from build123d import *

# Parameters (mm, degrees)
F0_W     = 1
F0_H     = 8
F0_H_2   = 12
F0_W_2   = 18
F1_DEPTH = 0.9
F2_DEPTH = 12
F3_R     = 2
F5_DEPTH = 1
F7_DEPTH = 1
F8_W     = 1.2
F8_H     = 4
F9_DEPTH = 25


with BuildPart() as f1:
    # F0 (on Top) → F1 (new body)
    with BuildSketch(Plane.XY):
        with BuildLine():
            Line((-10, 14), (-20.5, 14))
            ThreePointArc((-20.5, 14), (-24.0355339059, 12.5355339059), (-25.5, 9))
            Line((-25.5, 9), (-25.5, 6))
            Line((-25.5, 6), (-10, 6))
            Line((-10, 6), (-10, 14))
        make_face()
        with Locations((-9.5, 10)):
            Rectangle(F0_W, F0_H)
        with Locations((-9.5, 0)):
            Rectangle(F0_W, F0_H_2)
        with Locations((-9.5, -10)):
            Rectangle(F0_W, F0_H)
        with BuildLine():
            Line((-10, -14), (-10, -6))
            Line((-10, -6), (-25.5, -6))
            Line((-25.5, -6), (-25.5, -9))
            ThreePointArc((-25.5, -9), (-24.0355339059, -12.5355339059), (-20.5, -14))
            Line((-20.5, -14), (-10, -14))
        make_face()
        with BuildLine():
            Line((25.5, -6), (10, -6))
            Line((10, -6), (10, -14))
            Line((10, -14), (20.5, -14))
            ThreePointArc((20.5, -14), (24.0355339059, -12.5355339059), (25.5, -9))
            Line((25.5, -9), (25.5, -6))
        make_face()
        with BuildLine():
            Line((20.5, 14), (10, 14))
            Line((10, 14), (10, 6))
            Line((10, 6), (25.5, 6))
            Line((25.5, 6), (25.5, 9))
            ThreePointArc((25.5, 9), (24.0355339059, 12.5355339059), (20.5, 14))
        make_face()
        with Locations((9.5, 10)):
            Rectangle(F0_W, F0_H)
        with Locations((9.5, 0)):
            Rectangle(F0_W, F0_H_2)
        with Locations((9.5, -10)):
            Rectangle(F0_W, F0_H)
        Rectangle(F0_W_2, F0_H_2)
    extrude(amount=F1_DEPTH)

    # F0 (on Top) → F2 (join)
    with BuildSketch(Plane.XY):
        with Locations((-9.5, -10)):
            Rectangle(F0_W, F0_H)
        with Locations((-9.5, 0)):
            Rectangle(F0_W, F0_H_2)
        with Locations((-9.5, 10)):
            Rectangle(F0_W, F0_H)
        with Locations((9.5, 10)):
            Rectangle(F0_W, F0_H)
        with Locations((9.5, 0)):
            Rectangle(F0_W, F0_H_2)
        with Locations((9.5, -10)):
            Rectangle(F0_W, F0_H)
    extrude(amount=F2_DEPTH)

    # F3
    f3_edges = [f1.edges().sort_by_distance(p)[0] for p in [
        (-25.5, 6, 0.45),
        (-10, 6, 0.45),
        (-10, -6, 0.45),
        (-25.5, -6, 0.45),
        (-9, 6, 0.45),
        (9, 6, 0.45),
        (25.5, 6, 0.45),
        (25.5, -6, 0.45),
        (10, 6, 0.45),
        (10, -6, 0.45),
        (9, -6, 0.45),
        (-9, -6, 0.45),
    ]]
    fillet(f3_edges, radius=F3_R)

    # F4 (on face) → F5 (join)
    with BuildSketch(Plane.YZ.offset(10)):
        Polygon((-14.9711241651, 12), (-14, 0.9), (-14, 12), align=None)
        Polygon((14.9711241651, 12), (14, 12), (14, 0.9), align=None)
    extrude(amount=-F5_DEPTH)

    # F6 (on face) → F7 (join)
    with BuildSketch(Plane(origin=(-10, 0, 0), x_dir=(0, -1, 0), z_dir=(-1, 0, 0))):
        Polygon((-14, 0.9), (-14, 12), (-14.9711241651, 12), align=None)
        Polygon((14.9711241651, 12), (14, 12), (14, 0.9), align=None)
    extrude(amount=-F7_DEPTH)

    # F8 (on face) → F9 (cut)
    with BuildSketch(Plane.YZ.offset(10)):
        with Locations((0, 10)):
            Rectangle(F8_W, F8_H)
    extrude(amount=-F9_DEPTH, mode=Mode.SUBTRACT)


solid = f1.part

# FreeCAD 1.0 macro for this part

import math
import FreeCAD as App
import Part
import Sketcher
Q = App.Units.Quantity


def edges_at(feature, points):
    """Names of the edges that pass closest to the given points."""
    edges = feature.Shape.Edges
    near = lambda p: min(range(len(edges)), key=lambda i: edges[i].distToShape(Part.Vertex(*p))[0])
    return sorted({f"Edge{near(p) + 1}" for p in points})

doc = App.newDocument("Part")
params = doc.addObject("Spreadsheet::Sheet", "Params")
for row, (alias, value) in enumerate([
    ("sketch1_radius", "5 mm"),
    ("sketch1_width", "18 mm"),
    ("sketch1_height", "3 mm"),
    ("sketch1_height2", "12 mm"),
    ("sketch1_width2", "15.5 mm"),
    ("pad1_length", "0.9 mm"),
    ("sketch2_width", "1 mm"),
    ("sketch2_height", "28 mm"),
    ("pad2_length", "12 mm"),
    ("fillet_radius", "2 mm"),
    ("sketch3_height", "11.1 mm"),
    ("pad3_length", "1 mm"),
    ("sketch4_height", "11.1 mm"),
    ("pad4_length", "1 mm"),
    ("sketch5_height", "4 mm"),
    ("sketch5_width", "1.2 mm"),
    ("pocket1_length", "25 mm"),
], start=1):
    params.set(f"A{row}", alias)
    params.set(f"B{row}", "=" + value)
    params.setAlias(f"B{row}", alias)

body = doc.addObject("PartDesign::Body", "Body")

# Sketch on XY plane
sketch1 = body.newObject("Sketcher::SketchObject", "Sketch")
sketch1.AttachmentSupport = (doc.getObject("XY_Plane"), [""])
sketch1.MapMode = "FlatFace"
sketch1.addGeometry(Part.ArcOfCircle(Part.Circle(App.Vector(-20.5, 9, 0), App.Vector(0, 0, 1), 5), math.radians(90), math.radians(180)), False)
sketch1.addGeometry(Part.LineSegment(App.Vector(-25.5, 9, 0), App.Vector(-25.5, 6, 0)), False)
sketch1.addGeometry(Part.LineSegment(App.Vector(-25.5, 6, 0), App.Vector(-10, 6, 0)), False)
sketch1.addGeometry(Part.LineSegment(App.Vector(-10, 6, 0), App.Vector(-10, -6, 0)), False)
sketch1.addGeometry(Part.LineSegment(App.Vector(-10, -6, 0), App.Vector(-25.5, -6, 0)), False)
sketch1.addGeometry(Part.LineSegment(App.Vector(-25.5, -6, 0), App.Vector(-25.5, -9, 0)), False)
sketch1.addGeometry(Part.ArcOfCircle(Part.Circle(App.Vector(-20.5, -9, 0), App.Vector(0, 0, 1), 5), math.radians(180), math.radians(270)), False)
sketch1.addGeometry(Part.LineSegment(App.Vector(-20.5, -14, 0), App.Vector(-9, -14, 0)), False)
sketch1.addGeometry(Part.LineSegment(App.Vector(-9, -14, 0), App.Vector(-9, -6, 0)), False)
sketch1.addGeometry(Part.LineSegment(App.Vector(-9, -6, 0), App.Vector(9, -6, 0)), False)
sketch1.addGeometry(Part.LineSegment(App.Vector(9, -6, 0), App.Vector(9, -14, 0)), False)
sketch1.addGeometry(Part.LineSegment(App.Vector(9, -14, 0), App.Vector(20.5, -14, 0)), False)
sketch1.addGeometry(Part.ArcOfCircle(Part.Circle(App.Vector(20.5, -9, 0), App.Vector(0, 0, 1), 5), math.radians(-90), math.radians(0)), False)
sketch1.addGeometry(Part.LineSegment(App.Vector(25.5, -9, 0), App.Vector(25.5, -6, 0)), False)
sketch1.addGeometry(Part.LineSegment(App.Vector(25.5, -6, 0), App.Vector(10, -6, 0)), False)
sketch1.addGeometry(Part.LineSegment(App.Vector(10, -6, 0), App.Vector(10, 6, 0)), False)
sketch1.addGeometry(Part.LineSegment(App.Vector(10, 6, 0), App.Vector(25.5, 6, 0)), False)
sketch1.addGeometry(Part.LineSegment(App.Vector(25.5, 6, 0), App.Vector(25.5, 9, 0)), False)
sketch1.addGeometry(Part.ArcOfCircle(Part.Circle(App.Vector(20.5, 9, 0), App.Vector(0, 0, 1), 5), math.radians(0), math.radians(90)), False)
sketch1.addGeometry(Part.LineSegment(App.Vector(20.5, 14, 0), App.Vector(9, 14, 0)), False)
sketch1.addGeometry(Part.LineSegment(App.Vector(9, 14, 0), App.Vector(9, 6, 0)), False)
sketch1.addGeometry(Part.LineSegment(App.Vector(9, 6, 0), App.Vector(-9, 6, 0)), False)
sketch1.addGeometry(Part.LineSegment(App.Vector(-9, 6, 0), App.Vector(-9, 14, 0)), False)
sketch1.addGeometry(Part.LineSegment(App.Vector(-9, 14, 0), App.Vector(-20.5, 14, 0)), False)
sketch1.addConstraint(Sketcher.Constraint("Tangent", 0, 2, 1, 1))
sketch1.addConstraint(Sketcher.Constraint("Coincident", 1, 2, 2, 1))
sketch1.addConstraint(Sketcher.Constraint("Coincident", 2, 2, 3, 1))
sketch1.addConstraint(Sketcher.Constraint("Coincident", 3, 2, 4, 1))
sketch1.addConstraint(Sketcher.Constraint("Coincident", 4, 2, 5, 1))
sketch1.addConstraint(Sketcher.Constraint("Tangent", 5, 2, 6, 1))
sketch1.addConstraint(Sketcher.Constraint("Tangent", 6, 2, 7, 1))
sketch1.addConstraint(Sketcher.Constraint("Coincident", 7, 2, 8, 1))
sketch1.addConstraint(Sketcher.Constraint("Coincident", 8, 2, 9, 1))
sketch1.addConstraint(Sketcher.Constraint("Coincident", 9, 2, 10, 1))
sketch1.addConstraint(Sketcher.Constraint("Coincident", 10, 2, 11, 1))
sketch1.addConstraint(Sketcher.Constraint("Tangent", 11, 2, 12, 1))
sketch1.addConstraint(Sketcher.Constraint("Tangent", 12, 2, 13, 1))
sketch1.addConstraint(Sketcher.Constraint("Coincident", 13, 2, 14, 1))
sketch1.addConstraint(Sketcher.Constraint("Coincident", 14, 2, 15, 1))
sketch1.addConstraint(Sketcher.Constraint("Coincident", 15, 2, 16, 1))
sketch1.addConstraint(Sketcher.Constraint("Coincident", 16, 2, 17, 1))
sketch1.addConstraint(Sketcher.Constraint("Tangent", 17, 2, 18, 1))
sketch1.addConstraint(Sketcher.Constraint("Tangent", 18, 2, 19, 1))
sketch1.addConstraint(Sketcher.Constraint("Coincident", 19, 2, 20, 1))
sketch1.addConstraint(Sketcher.Constraint("Coincident", 20, 2, 21, 1))
sketch1.addConstraint(Sketcher.Constraint("Coincident", 21, 2, 22, 1))
sketch1.addConstraint(Sketcher.Constraint("Coincident", 22, 2, 23, 1))
sketch1.addConstraint(Sketcher.Constraint("Tangent", 23, 2, 0, 1))
sketch1.addConstraint(Sketcher.Constraint("Vertical", 1))
sketch1.addConstraint(Sketcher.Constraint("Horizontal", 2))
sketch1.addConstraint(Sketcher.Constraint("Vertical", 3))
sketch1.addConstraint(Sketcher.Constraint("Horizontal", 4))
sketch1.addConstraint(Sketcher.Constraint("Vertical", 5))
sketch1.addConstraint(Sketcher.Constraint("Horizontal", 7))
sketch1.addConstraint(Sketcher.Constraint("Vertical", 8))
sketch1.addConstraint(Sketcher.Constraint("Horizontal", 9))
sketch1.addConstraint(Sketcher.Constraint("Vertical", 10))
sketch1.addConstraint(Sketcher.Constraint("Horizontal", 11))
sketch1.addConstraint(Sketcher.Constraint("Vertical", 13))
sketch1.addConstraint(Sketcher.Constraint("Horizontal", 14))
sketch1.addConstraint(Sketcher.Constraint("Vertical", 15))
sketch1.addConstraint(Sketcher.Constraint("Horizontal", 16))
sketch1.addConstraint(Sketcher.Constraint("Vertical", 17))
sketch1.addConstraint(Sketcher.Constraint("Horizontal", 19))
sketch1.addConstraint(Sketcher.Constraint("Vertical", 20))
sketch1.addConstraint(Sketcher.Constraint("Horizontal", 21))
sketch1.addConstraint(Sketcher.Constraint("Vertical", 22))
sketch1.addConstraint(Sketcher.Constraint("Horizontal", 23))
sketch1.addConstraint(Sketcher.Constraint("Equal", 0, 6))
sketch1.addConstraint(Sketcher.Constraint("Equal", 6, 12))
sketch1.addConstraint(Sketcher.Constraint("Equal", 12, 18))
sketch1.addConstraint(Sketcher.Constraint("Symmetric", 0, 3, 12, 3, -1, 1))
sketch1.addConstraint(Sketcher.Constraint("Symmetric", 6, 3, 18, 3, -1, 1))
sketch1.addConstraint(Sketcher.Constraint("Symmetric", 2, 2, 14, 2, -1, 1))
sketch1.addConstraint(Sketcher.Constraint("Symmetric", 8, 2, 20, 2, -1, 1))
sketch1.addConstraint(Sketcher.Constraint("Symmetric", 6, 3, 12, 3, -2))
sketch1.addConstraint(Sketcher.Constraint("Horizontal", 4, 2, 8, 2))
sketch1.addConstraint(Sketcher.Constraint("Horizontal", 9, 2, 13, 2))
sketch1.addConstraint(Sketcher.Constraint("Horizontal", 2, 2, 15, 2))
sketch1.addConstraint(Sketcher.Constraint("Vertical", 10, 2, 19, 2))
sketch1.addConstraint(Sketcher.Constraint("Vertical", 8, 2, 21, 2))
sketch1.addConstraint(Sketcher.Constraint("Radius", 0, Q("5 mm")))
sketch1.addConstraint(Sketcher.Constraint("DistanceX", 9, 1, 9, 2, Q("18 mm")))
sketch1.addConstraint(Sketcher.Constraint("DistanceY", 1, 2, 1, 1, Q("3 mm")))
sketch1.addConstraint(Sketcher.Constraint("DistanceY", 3, 2, 3, 1, Q("12 mm")))
sketch1.addConstraint(Sketcher.Constraint("DistanceX", 2, 1, 2, 2, Q("15.5 mm")))
sketch1.addConstraint(Sketcher.Constraint("DistanceX", 7, 1, 7, 2, Q("11.5 mm")))
sketch1.setExpression("Constraints[57]", "Params.sketch1_radius")
sketch1.setExpression("Constraints[58]", "Params.sketch1_width")
sketch1.setExpression("Constraints[59]", "Params.sketch1_height")
sketch1.setExpression("Constraints[60]", "Params.sketch1_height2")
sketch1.setExpression("Constraints[61]", "Params.sketch1_width2")
pad1 = body.newObject("PartDesign::Pad", "Pad")
pad1.Profile = sketch1
pad1.setExpression("Length", "Params.pad1_length")

# Sketch on XY plane
sketch2 = body.newObject("Sketcher::SketchObject", "Sketch001")
sketch2.AttachmentSupport = (doc.getObject("XY_Plane"), [""])
sketch2.MapMode = "FlatFace"
sketch2.addGeometry(Part.LineSegment(App.Vector(-10, -14, 0), App.Vector(-9, -14, 0)), False)
sketch2.addGeometry(Part.LineSegment(App.Vector(-9, -14, 0), App.Vector(-9, 14, 0)), False)
sketch2.addGeometry(Part.LineSegment(App.Vector(-9, 14, 0), App.Vector(-10, 14, 0)), False)
sketch2.addGeometry(Part.LineSegment(App.Vector(-10, 14, 0), App.Vector(-10, -14, 0)), False)
sketch2.addGeometry(Part.LineSegment(App.Vector(9, 14, 0), App.Vector(9, -14, 0)), False)
sketch2.addGeometry(Part.LineSegment(App.Vector(9, -14, 0), App.Vector(10, -14, 0)), False)
sketch2.addGeometry(Part.LineSegment(App.Vector(10, -14, 0), App.Vector(10, 14, 0)), False)
sketch2.addGeometry(Part.LineSegment(App.Vector(10, 14, 0), App.Vector(9, 14, 0)), False)
sketch2.addConstraint(Sketcher.Constraint("Coincident", 0, 2, 1, 1))
sketch2.addConstraint(Sketcher.Constraint("Coincident", 1, 2, 2, 1))
sketch2.addConstraint(Sketcher.Constraint("Coincident", 2, 2, 3, 1))
sketch2.addConstraint(Sketcher.Constraint("Coincident", 3, 2, 0, 1))
sketch2.addConstraint(Sketcher.Constraint("Coincident", 4, 2, 5, 1))
sketch2.addConstraint(Sketcher.Constraint("Coincident", 5, 2, 6, 1))
sketch2.addConstraint(Sketcher.Constraint("Coincident", 6, 2, 7, 1))
sketch2.addConstraint(Sketcher.Constraint("Coincident", 7, 2, 4, 1))
sketch2.addConstraint(Sketcher.Constraint("Horizontal", 0))
sketch2.addConstraint(Sketcher.Constraint("Vertical", 1))
sketch2.addConstraint(Sketcher.Constraint("Horizontal", 2))
sketch2.addConstraint(Sketcher.Constraint("Vertical", 3))
sketch2.addConstraint(Sketcher.Constraint("Vertical", 4))
sketch2.addConstraint(Sketcher.Constraint("Horizontal", 5))
sketch2.addConstraint(Sketcher.Constraint("Vertical", 6))
sketch2.addConstraint(Sketcher.Constraint("Horizontal", 7))
sketch2.addConstraint(Sketcher.Constraint("Symmetric", 1, 2, 4, 2, -1, 1))
sketch2.addConstraint(Sketcher.Constraint("Symmetric", 3, 2, 6, 2, -1, 1))
sketch2.addConstraint(Sketcher.Constraint("Horizontal", 3, 2, 4, 2))
sketch2.addConstraint(Sketcher.Constraint("DistanceX", 0, 1, 0, 2, Q("1 mm")))
sketch2.addConstraint(Sketcher.Constraint("DistanceY", 1, 1, 1, 2, Q("28 mm")))
sketch2.addConstraint(Sketcher.Constraint("DistanceX", 0, 2, -1, 1, Q("9 mm")))
sketch2.setExpression("Constraints[19]", "Params.sketch2_width")
sketch2.setExpression("Constraints[20]", "Params.sketch2_height")
pad2 = body.newObject("PartDesign::Pad", "Pad001")
pad2.Profile = sketch2
pad2.setExpression("Length", "Params.pad2_length")
doc.recompute()

fillet = body.newObject("PartDesign::Fillet", "Fillet")
fillet.Base = (pad2, edges_at(pad2, [
    (-25.5, 6, 0.45),
    (-10, 6, 0.45),
    (-10, -6, 0.45),
    (-25.5, -6, 0.45),
    (-9, 6, 0.45),
    (9, 6, 0.45),
    (25.5, 6, 0.45),
    (25.5, -6, 0.45),
    (10, 6, 0.45),
    (10, -6, 0.45),
    (9, -6, 0.45),
    (-9, -6, 0.45),
]))
fillet.setExpression("Radius", "Params.fillet_radius")

# Sketch on YZ plane
sketch3 = body.newObject("Sketcher::SketchObject", "Sketch002")
sketch3.AttachmentSupport = (doc.getObject("YZ_Plane"), [""])
sketch3.MapMode = "FlatFace"
sketch3.AttachmentOffset = App.Placement(App.Vector(0, 0, 10), App.Rotation())
sketch3.addGeometry(Part.LineSegment(App.Vector(-15, 12, 0), App.Vector(-14, 0.9, 0)), False)
sketch3.addGeometry(Part.LineSegment(App.Vector(-14, 0.9, 0), App.Vector(-14, 12, 0)), False)
sketch3.addGeometry(Part.LineSegment(App.Vector(-14, 12, 0), App.Vector(-15, 12, 0)), False)
sketch3.addGeometry(Part.LineSegment(App.Vector(15, 12, 0), App.Vector(14, 12, 0)), False)
sketch3.addGeometry(Part.LineSegment(App.Vector(14, 12, 0), App.Vector(14, 0.9, 0)), False)
sketch3.addGeometry(Part.LineSegment(App.Vector(14, 0.9, 0), App.Vector(15, 12, 0)), False)
sketch3.addConstraint(Sketcher.Constraint("Coincident", 0, 2, 1, 1))
sketch3.addConstraint(Sketcher.Constraint("Coincident", 1, 2, 2, 1))
sketch3.addConstraint(Sketcher.Constraint("Coincident", 2, 2, 0, 1))
sketch3.addConstraint(Sketcher.Constraint("Coincident", 3, 2, 4, 1))
sketch3.addConstraint(Sketcher.Constraint("Coincident", 4, 2, 5, 1))
sketch3.addConstraint(Sketcher.Constraint("Coincident", 5, 2, 3, 1))
sketch3.addConstraint(Sketcher.Constraint("Vertical", 1))
sketch3.addConstraint(Sketcher.Constraint("Horizontal", 2))
sketch3.addConstraint(Sketcher.Constraint("Horizontal", 3))
sketch3.addConstraint(Sketcher.Constraint("Vertical", 4))
sketch3.addConstraint(Sketcher.Constraint("Symmetric", 1, 2, 3, 2, -2))
sketch3.addConstraint(Sketcher.Constraint("Horizontal", 0, 2, 4, 2))
sketch3.addConstraint(Sketcher.Constraint("Equal", 2, 3))
sketch3.addConstraint(Sketcher.Constraint("Angle", 0, Q("-85 deg")))
sketch3.addConstraint(Sketcher.Constraint("DistanceY", 1, 1, 1, 2, Q("11.1 mm")))
sketch3.addConstraint(Sketcher.Constraint("DistanceX", 0, 2, -1, 1, Q("14 mm")))
sketch3.addConstraint(Sketcher.Constraint("DistanceY", -1, 1, 1, 2, Q("12 mm")))
sketch3.setExpression("Constraints[14]", "Params.sketch3_height")
pad3 = body.newObject("PartDesign::Pad", "Pad002")
pad3.Profile = sketch3
pad3.setExpression("Length", "Params.pad3_length")
pad3.Reversed = True

# Sketch on YZ plane
sketch4 = body.newObject("Sketcher::SketchObject", "Sketch003")
sketch4.AttachmentSupport = (doc.getObject("YZ_Plane"), [""])
sketch4.MapMode = "FlatFace"
sketch4.AttachmentOffset = App.Placement(App.Vector(0, 0, -10), App.Rotation())
sketch4.addGeometry(Part.LineSegment(App.Vector(14, 0.9, 0), App.Vector(14, 12, 0)), False)
sketch4.addGeometry(Part.LineSegment(App.Vector(14, 12, 0), App.Vector(15, 12, 0)), False)
sketch4.addGeometry(Part.LineSegment(App.Vector(15, 12, 0), App.Vector(14, 0.9, 0)), False)
sketch4.addGeometry(Part.LineSegment(App.Vector(-15, 12, 0), App.Vector(-14, 12, 0)), False)
sketch4.addGeometry(Part.LineSegment(App.Vector(-14, 12, 0), App.Vector(-14, 0.9, 0)), False)
sketch4.addGeometry(Part.LineSegment(App.Vector(-14, 0.9, 0), App.Vector(-15, 12, 0)), False)
sketch4.addConstraint(Sketcher.Constraint("Coincident", 0, 2, 1, 1))
sketch4.addConstraint(Sketcher.Constraint("Coincident", 1, 2, 2, 1))
sketch4.addConstraint(Sketcher.Constraint("Coincident", 2, 2, 0, 1))
sketch4.addConstraint(Sketcher.Constraint("Coincident", 3, 2, 4, 1))
sketch4.addConstraint(Sketcher.Constraint("Coincident", 4, 2, 5, 1))
sketch4.addConstraint(Sketcher.Constraint("Coincident", 5, 2, 3, 1))
sketch4.addConstraint(Sketcher.Constraint("Vertical", 0))
sketch4.addConstraint(Sketcher.Constraint("Horizontal", 1))
sketch4.addConstraint(Sketcher.Constraint("Horizontal", 3))
sketch4.addConstraint(Sketcher.Constraint("Vertical", 4))
sketch4.addConstraint(Sketcher.Constraint("Symmetric", 0, 2, 3, 2, -2))
sketch4.addConstraint(Sketcher.Constraint("Horizontal", 2, 2, 4, 2))
sketch4.addConstraint(Sketcher.Constraint("Equal", 1, 3))
sketch4.addConstraint(Sketcher.Constraint("Angle", 2, Q("-95 deg")))
sketch4.addConstraint(Sketcher.Constraint("DistanceY", 0, 1, 0, 2, Q("11.1 mm")))
sketch4.addConstraint(Sketcher.Constraint("DistanceX", -1, 1, 0, 2, Q("14 mm")))
sketch4.addConstraint(Sketcher.Constraint("DistanceY", -1, 1, 0, 2, Q("12 mm")))
sketch4.setExpression("Constraints[14]", "Params.sketch4_height")
pad4 = body.newObject("PartDesign::Pad", "Pad003")
pad4.Profile = sketch4
pad4.setExpression("Length", "Params.pad4_length")

# Sketch on YZ plane
sketch5 = body.newObject("Sketcher::SketchObject", "Sketch004")
sketch5.AttachmentSupport = (doc.getObject("YZ_Plane"), [""])
sketch5.MapMode = "FlatFace"
sketch5.AttachmentOffset = App.Placement(App.Vector(0, 0, 10), App.Rotation())
sketch5.addGeometry(Part.LineSegment(App.Vector(-0.6, 12, 0), App.Vector(-0.6, 8, 0)), False)
sketch5.addGeometry(Part.LineSegment(App.Vector(-0.6, 8, 0), App.Vector(0.6, 8, 0)), False)
sketch5.addGeometry(Part.LineSegment(App.Vector(0.6, 8, 0), App.Vector(0.6, 12, 0)), False)
sketch5.addGeometry(Part.LineSegment(App.Vector(0.6, 12, 0), App.Vector(-0.6, 12, 0)), False)
sketch5.addConstraint(Sketcher.Constraint("Coincident", 0, 2, 1, 1))
sketch5.addConstraint(Sketcher.Constraint("Coincident", 1, 2, 2, 1))
sketch5.addConstraint(Sketcher.Constraint("Coincident", 2, 2, 3, 1))
sketch5.addConstraint(Sketcher.Constraint("Coincident", 3, 2, 0, 1))
sketch5.addConstraint(Sketcher.Constraint("Vertical", 0))
sketch5.addConstraint(Sketcher.Constraint("Horizontal", 1))
sketch5.addConstraint(Sketcher.Constraint("Vertical", 2))
sketch5.addConstraint(Sketcher.Constraint("Horizontal", 3))
sketch5.addConstraint(Sketcher.Constraint("DistanceY", 0, 2, 0, 1, Q("4 mm")))
sketch5.addConstraint(Sketcher.Constraint("DistanceX", 1, 1, 1, 2, Q("1.2 mm")))
sketch5.addConstraint(Sketcher.Constraint("DistanceY", -1, 1, 0, 2, Q("8 mm")))
sketch5.addConstraint(Sketcher.Constraint("DistanceX", 0, 2, -1, 1, Q("0.6 mm")))
sketch5.setExpression("Constraints[8]", "Params.sketch5_height")
sketch5.setExpression("Constraints[9]", "Params.sketch5_width")
pocket1 = body.newObject("PartDesign::Pocket", "Pocket")
pocket1.Profile = sketch5
pocket1.setExpression("Length", "Params.pocket1_length")

doc.recompute()
